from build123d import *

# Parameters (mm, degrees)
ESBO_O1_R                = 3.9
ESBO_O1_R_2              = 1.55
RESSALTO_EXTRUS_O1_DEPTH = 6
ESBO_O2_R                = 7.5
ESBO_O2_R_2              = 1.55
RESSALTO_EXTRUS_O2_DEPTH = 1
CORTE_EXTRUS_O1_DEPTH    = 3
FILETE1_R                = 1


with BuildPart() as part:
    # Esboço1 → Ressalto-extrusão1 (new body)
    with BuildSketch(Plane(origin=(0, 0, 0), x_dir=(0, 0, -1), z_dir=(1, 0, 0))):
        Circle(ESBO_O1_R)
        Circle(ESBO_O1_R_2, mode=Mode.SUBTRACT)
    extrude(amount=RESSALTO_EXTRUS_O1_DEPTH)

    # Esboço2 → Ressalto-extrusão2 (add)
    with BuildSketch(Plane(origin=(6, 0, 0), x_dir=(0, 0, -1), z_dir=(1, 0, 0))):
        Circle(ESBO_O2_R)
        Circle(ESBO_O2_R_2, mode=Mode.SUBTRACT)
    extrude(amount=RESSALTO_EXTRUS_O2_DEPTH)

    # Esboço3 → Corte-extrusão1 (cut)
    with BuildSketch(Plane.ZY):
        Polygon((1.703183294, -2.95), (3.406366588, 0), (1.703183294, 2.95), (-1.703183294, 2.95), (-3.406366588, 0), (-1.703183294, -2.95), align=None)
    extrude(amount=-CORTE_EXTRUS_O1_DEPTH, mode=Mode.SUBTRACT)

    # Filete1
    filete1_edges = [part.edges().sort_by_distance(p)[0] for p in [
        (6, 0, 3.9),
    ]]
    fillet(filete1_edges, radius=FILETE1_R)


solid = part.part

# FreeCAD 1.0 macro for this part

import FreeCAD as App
import Part
import Sketcher

V = App.Vector
Q = App.Units.Quantity


def edges_at(feature, points):
    """Names of the edges that pass closest to the given points."""
    edges = feature.Shape.Edges
    near = lambda p: min(range(len(edges)), key=lambda i: edges[i].distToShape(Part.Vertex(*p))[0])
    return sorted({f"Edge{near(p) + 1}" for p in points})


def add_polygon(sketch, points):
    """Adds a closed chain of lines whose ends are joined by coincident constraints."""
    first, n = sketch.GeometryCount, len(points)
    for a, b in zip(points, points[1:] + points[:1]):
        sketch.addGeometry(Part.LineSegment(App.Vector(*a, 0), App.Vector(*b, 0)), False)
    for i in range(n):
        sketch.addConstraint(Sketcher.Constraint("Coincident", first + i, 2, first + (i + 1) % n, 1))

doc = App.newDocument("Part")
body = doc.addObject("PartDesign::Body", "Body")

sketch1 = body.newObject("Sketcher::SketchObject", "Sketch")
sketch1.AttachmentSupport = (doc.getObject("YZ_Plane"), [""])
sketch1.MapMode = "FlatFace"
sketch1.addGeometry([
    Part.Circle(V(0, 0, 0), V(0, 0, 1), 3.9),
    Part.Circle(V(0, 0, 0), V(0, 0, 1), 1.6),
], False)
sketch1.addConstraint([
    Sketcher.Constraint("Coincident", 0, 3, -1, 1),
    Sketcher.Constraint("Coincident", 1, 3, -1, 1),
    Sketcher.Constraint("Diameter", 0, 7.8),
    Sketcher.Constraint("Diameter", 1, 3.1),
])
pad1 = body.newObject("PartDesign::Pad", "Pad")
pad1.Profile = sketch1
pad1.Length = 6

sketch2 = body.newObject("Sketcher::SketchObject", "Sketch001")
sketch2.AttachmentSupport = (doc.getObject("YZ_Plane"), [""])
sketch2.MapMode = "FlatFace"
sketch2.AttachmentOffset = App.Placement(V(0, 0, 6), App.Rotation())
sketch2.addGeometry([
    Part.Circle(V(0, 0, 0), V(0, 0, 1), 7.5),
    Part.Circle(V(0, 0, 0), V(0, 0, 1), 1.6),
], False)
sketch2.addConstraint([
    Sketcher.Constraint("Coincident", 0, 3, -1, 1),
    Sketcher.Constraint("Coincident", 1, 3, -1, 1),
    Sketcher.Constraint("Diameter", 0, 15.0),
    Sketcher.Constraint("Diameter", 1, 3.1),
])
pad2 = body.newObject("PartDesign::Pad", "Pad001")
pad2.Profile = sketch2
pad2.Length = 1

sketch3 = body.newObject("Sketcher::SketchObject", "Sketch002")
sketch3.AttachmentSupport = (doc.getObject("YZ_Plane"), [""])
sketch3.MapMode = "FlatFace"
add_polygon(sketch3, [(-3, 1.7), (0, 3.4), (3, 1.7), (3, -1.7), (0, -3.4), (-3, -1.7)])
sketch3.addConstraint([
    Sketcher.Constraint("Vertical", 2),
    Sketcher.Constraint("Vertical", 5),
    Sketcher.Constraint("Symmetric", 0, 2, 3, 2, -1, 1),
    Sketcher.Constraint("Symmetric", 1, 2, 4, 2, -1, 1),
    Sketcher.Constraint("PointOnObject", 0, 2, -2),
    Sketcher.Constraint("Parallel", 0, 3),
    Sketcher.Constraint("Horizontal", 2, 2, 4, 2),
    Sketcher.Constraint("Angle", 0, Q("30 deg")),
    Sketcher.Constraint("DistanceX", 4, 2, 2, 2, 5.9),
    Sketcher.Constraint("DistanceY", 2, 2, 2, 1, 3.406367),
])
pocket1 = body.newObject("PartDesign::Pocket", "Pocket")
pocket1.Profile = sketch3
pocket1.Length = 3
pocket1.Reversed = True
doc.recompute()

fillet = body.newObject("PartDesign::Fillet", "Fillet")
fillet.Base = (pocket1, edges_at(pocket1, [(6, 0, 3.9)]))
fillet.Radius = 1

doc.recompute()
